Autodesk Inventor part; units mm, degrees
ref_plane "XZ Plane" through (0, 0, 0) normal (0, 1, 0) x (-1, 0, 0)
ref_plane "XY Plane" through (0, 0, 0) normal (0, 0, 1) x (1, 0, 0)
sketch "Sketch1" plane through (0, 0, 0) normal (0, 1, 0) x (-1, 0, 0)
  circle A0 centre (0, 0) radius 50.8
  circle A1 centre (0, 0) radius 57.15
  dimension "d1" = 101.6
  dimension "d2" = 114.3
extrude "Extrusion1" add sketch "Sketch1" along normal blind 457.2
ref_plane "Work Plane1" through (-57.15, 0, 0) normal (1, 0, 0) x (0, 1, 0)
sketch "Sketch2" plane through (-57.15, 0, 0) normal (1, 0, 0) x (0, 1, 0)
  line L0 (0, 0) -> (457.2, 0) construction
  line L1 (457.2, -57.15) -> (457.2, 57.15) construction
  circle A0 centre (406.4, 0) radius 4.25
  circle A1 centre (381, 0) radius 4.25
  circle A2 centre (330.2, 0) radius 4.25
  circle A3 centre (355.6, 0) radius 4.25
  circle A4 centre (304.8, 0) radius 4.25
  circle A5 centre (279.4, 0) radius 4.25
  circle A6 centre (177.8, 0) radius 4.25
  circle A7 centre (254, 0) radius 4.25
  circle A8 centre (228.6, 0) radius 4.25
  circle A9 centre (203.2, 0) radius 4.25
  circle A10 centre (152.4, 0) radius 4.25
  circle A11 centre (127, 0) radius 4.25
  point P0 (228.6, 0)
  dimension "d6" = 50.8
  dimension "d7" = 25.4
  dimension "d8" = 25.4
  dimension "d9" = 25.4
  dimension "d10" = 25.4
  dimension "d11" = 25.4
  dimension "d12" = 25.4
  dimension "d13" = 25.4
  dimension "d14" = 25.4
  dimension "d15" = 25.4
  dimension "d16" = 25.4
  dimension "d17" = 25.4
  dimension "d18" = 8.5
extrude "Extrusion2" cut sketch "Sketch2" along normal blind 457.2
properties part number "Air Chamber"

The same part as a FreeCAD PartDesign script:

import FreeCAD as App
import Part
import Sketcher
from FreeCAD import Vector
Q = App.Units.Quantity

doc = App.newDocument("Part")
params = doc.addObject("Spreadsheet::Sheet", "Params")
for row, (alias, value) in enumerate([
    ("sketch1_diameter", "4 in"),
    ("sketch1_diameter2", "4.5 in"),
    ("pad1_length", "18 in"),
    ("pocket1_length", "18 in"),
], start=1):
    params.set(f"A{row}", alias)
    params.set(f"B{row}", "=" + value)
    params.setAlias(f"B{row}", alias)

body = doc.addObject("PartDesign::Body", "Body")

# Sketch on XZ plane
sketch1 = body.newObject("Sketcher::SketchObject", "Sketch")
sketch1.AttachmentSupport = (doc.getObject("XZ_Plane"), [""])
sketch1.MapMode = "FlatFace"
sketch1.addGeometry([
    Part.Circle(Vector(0, 0, 0), Vector(0, 0, 1), 57.15),
    Part.Circle(Vector(0, 0, 0), Vector(0, 0, 1), 50.8),
], False)
sketch1.addConstraint([
    Sketcher.Constraint("Coincident", 0, 3, -1, 1),
    Sketcher.Constraint("Coincident", 1, 3, -1, 1),
    Sketcher.Constraint("Diameter", 1, Q("4 in")),
    Sketcher.Constraint("Diameter", 0, Q("4.5 in")),
])
sketch1.setExpression("Constraints[2]", "Params.sketch1_diameter")
sketch1.setExpression("Constraints[3]", "Params.sketch1_diameter2")
pad1 = body.newObject("PartDesign::Pad", "Pad")
pad1.Profile = sketch1
pad1.setExpression("Length", "Params.pad1_length")
pad1.Reversed = True

# Sketch on YZ plane
sketch2 = body.newObject("Sketcher::SketchObject", "Sketch001")
sketch2.AttachmentSupport = (doc.getObject("YZ_Plane"), [""])
sketch2.MapMode = "FlatFace"
sketch2.AttachmentOffset = App.Placement(Vector(0, 0, -2.25 * 25.4), App.Rotation())
sketch2.addGeometry([
    Part.Circle(Vector(406.4, 0, 0), Vector(0, 0, 1), 4.25),  # 0
    Part.Circle(Vector(381, 0, 0), Vector(0, 0, 1), 4.25),  # 1
    Part.Circle(Vector(330.2, 0, 0), Vector(0, 0, 1), 4.25),  # 2
    Part.Circle(Vector(355.6, 0, 0), Vector(0, 0, 1), 4.25),  # 3
    Part.Circle(Vector(304.8, 0, 0), Vector(0, 0, 1), 4.25),  # 4
    Part.Circle(Vector(279.4, 0, 0), Vector(0, 0, 1), 4.25),  # 5
    Part.Circle(Vector(177.8, 0, 0), Vector(0, 0, 1), 4.25),  # 6
    Part.Circle(Vector(254, 0, 0), Vector(0, 0, 1), 4.25),  # 7
    Part.Circle(Vector(228.6, 0, 0), Vector(0, 0, 1), 4.25),  # 8
    Part.Circle(Vector(203.2, 0, 0), Vector(0, 0, 1), 4.25),  # 9
    Part.Circle(Vector(152.4, 0, 0), Vector(0, 0, 1), 4.25),  # 10
    Part.Circle(Vector(127, 0, 0), Vector(0, 0, 1), 4.25),  # 11
], False)
sketch2.addConstraint([
    Sketcher.Constraint("Equal", 0, 1),
    Sketcher.Constraint("Equal", 1, 2),
    Sketcher.Constraint("Equal", 2, 3),
    Sketcher.Constraint("Equal", 3, 4),
    Sketcher.Constraint("Equal", 4, 5),
    Sketcher.Constraint("Equal", 5, 6),
    Sketcher.Constraint("Equal", 6, 7),
    Sketcher.Constraint("Equal", 7, 8),
    Sketcher.Constraint("Equal", 8, 9),
    Sketcher.Constraint("Equal", 9, 10),
    Sketcher.Constraint("Equal", 10, 11),
    Sketcher.Constraint("PointOnObject", 0, 3, -1),
    Sketcher.Constraint("PointOnObject", 1, 3, -1),
    Sketcher.Constraint("PointOnObject", 2, 3, -1),
    Sketcher.Constraint("PointOnObject", 3, 3, -1),
    Sketcher.Constraint("PointOnObject", 4, 3, -1),
    Sketcher.Constraint("PointOnObject", 5, 3, -1),
    Sketcher.Constraint("PointOnObject", 6, 3, -1),
    Sketcher.Constraint("PointOnObject", 7, 3, -1),
    Sketcher.Constraint("PointOnObject", 8, 3, -1),
    Sketcher.Constraint("PointOnObject", 9, 3, -1),
    Sketcher.Constraint("PointOnObject", 10, 3, -1),
    Sketcher.Constraint("PointOnObject", 11, 3, -1),
    Sketcher.Constraint("DistanceX", 1, 3, 0, 3, Q("1 in")),
    Sketcher.Constraint("DistanceX", 2, 3, 1, 3, Q("2 in")),
    Sketcher.Constraint("DistanceX", 3, 3, 1, 3, Q("1 in")),
    Sketcher.Constraint("DistanceX", 4, 3, 2, 3, Q("1 in")),
    Sketcher.Constraint("DistanceX", 5, 3, 4, 3, Q("1 in")),
    Sketcher.Constraint("DistanceX", 7, 3, 5, 3, Q("1 in")),
    Sketcher.Constraint("DistanceX", 8, 3, 7, 3, Q("1 in")),
    Sketcher.Constraint("DistanceX", 6, 3, 8, 3, Q("2 in")),
    Sketcher.Constraint("DistanceX", 6, 3, 9, 3, Q("1 in")),
    Sketcher.Constraint("DistanceX", 10, 3, 6, 3, Q("1 in")),
    Sketcher.Constraint("DistanceX", 11, 3, 10, 3, Q("1 in")),
    Sketcher.Constraint("Diameter", 0, Q("8.5 mm")),
    Sketcher.Constraint("DistanceX", -1, 1, 0, 3, Q("16 in")),
])
pocket1 = body.newObject("PartDesign::Pocket", "Pocket")
pocket1.Profile = sketch2
pocket1.setExpression("Length", "Params.pocket1_length")
pocket1.Reversed = True

doc.recompute()
